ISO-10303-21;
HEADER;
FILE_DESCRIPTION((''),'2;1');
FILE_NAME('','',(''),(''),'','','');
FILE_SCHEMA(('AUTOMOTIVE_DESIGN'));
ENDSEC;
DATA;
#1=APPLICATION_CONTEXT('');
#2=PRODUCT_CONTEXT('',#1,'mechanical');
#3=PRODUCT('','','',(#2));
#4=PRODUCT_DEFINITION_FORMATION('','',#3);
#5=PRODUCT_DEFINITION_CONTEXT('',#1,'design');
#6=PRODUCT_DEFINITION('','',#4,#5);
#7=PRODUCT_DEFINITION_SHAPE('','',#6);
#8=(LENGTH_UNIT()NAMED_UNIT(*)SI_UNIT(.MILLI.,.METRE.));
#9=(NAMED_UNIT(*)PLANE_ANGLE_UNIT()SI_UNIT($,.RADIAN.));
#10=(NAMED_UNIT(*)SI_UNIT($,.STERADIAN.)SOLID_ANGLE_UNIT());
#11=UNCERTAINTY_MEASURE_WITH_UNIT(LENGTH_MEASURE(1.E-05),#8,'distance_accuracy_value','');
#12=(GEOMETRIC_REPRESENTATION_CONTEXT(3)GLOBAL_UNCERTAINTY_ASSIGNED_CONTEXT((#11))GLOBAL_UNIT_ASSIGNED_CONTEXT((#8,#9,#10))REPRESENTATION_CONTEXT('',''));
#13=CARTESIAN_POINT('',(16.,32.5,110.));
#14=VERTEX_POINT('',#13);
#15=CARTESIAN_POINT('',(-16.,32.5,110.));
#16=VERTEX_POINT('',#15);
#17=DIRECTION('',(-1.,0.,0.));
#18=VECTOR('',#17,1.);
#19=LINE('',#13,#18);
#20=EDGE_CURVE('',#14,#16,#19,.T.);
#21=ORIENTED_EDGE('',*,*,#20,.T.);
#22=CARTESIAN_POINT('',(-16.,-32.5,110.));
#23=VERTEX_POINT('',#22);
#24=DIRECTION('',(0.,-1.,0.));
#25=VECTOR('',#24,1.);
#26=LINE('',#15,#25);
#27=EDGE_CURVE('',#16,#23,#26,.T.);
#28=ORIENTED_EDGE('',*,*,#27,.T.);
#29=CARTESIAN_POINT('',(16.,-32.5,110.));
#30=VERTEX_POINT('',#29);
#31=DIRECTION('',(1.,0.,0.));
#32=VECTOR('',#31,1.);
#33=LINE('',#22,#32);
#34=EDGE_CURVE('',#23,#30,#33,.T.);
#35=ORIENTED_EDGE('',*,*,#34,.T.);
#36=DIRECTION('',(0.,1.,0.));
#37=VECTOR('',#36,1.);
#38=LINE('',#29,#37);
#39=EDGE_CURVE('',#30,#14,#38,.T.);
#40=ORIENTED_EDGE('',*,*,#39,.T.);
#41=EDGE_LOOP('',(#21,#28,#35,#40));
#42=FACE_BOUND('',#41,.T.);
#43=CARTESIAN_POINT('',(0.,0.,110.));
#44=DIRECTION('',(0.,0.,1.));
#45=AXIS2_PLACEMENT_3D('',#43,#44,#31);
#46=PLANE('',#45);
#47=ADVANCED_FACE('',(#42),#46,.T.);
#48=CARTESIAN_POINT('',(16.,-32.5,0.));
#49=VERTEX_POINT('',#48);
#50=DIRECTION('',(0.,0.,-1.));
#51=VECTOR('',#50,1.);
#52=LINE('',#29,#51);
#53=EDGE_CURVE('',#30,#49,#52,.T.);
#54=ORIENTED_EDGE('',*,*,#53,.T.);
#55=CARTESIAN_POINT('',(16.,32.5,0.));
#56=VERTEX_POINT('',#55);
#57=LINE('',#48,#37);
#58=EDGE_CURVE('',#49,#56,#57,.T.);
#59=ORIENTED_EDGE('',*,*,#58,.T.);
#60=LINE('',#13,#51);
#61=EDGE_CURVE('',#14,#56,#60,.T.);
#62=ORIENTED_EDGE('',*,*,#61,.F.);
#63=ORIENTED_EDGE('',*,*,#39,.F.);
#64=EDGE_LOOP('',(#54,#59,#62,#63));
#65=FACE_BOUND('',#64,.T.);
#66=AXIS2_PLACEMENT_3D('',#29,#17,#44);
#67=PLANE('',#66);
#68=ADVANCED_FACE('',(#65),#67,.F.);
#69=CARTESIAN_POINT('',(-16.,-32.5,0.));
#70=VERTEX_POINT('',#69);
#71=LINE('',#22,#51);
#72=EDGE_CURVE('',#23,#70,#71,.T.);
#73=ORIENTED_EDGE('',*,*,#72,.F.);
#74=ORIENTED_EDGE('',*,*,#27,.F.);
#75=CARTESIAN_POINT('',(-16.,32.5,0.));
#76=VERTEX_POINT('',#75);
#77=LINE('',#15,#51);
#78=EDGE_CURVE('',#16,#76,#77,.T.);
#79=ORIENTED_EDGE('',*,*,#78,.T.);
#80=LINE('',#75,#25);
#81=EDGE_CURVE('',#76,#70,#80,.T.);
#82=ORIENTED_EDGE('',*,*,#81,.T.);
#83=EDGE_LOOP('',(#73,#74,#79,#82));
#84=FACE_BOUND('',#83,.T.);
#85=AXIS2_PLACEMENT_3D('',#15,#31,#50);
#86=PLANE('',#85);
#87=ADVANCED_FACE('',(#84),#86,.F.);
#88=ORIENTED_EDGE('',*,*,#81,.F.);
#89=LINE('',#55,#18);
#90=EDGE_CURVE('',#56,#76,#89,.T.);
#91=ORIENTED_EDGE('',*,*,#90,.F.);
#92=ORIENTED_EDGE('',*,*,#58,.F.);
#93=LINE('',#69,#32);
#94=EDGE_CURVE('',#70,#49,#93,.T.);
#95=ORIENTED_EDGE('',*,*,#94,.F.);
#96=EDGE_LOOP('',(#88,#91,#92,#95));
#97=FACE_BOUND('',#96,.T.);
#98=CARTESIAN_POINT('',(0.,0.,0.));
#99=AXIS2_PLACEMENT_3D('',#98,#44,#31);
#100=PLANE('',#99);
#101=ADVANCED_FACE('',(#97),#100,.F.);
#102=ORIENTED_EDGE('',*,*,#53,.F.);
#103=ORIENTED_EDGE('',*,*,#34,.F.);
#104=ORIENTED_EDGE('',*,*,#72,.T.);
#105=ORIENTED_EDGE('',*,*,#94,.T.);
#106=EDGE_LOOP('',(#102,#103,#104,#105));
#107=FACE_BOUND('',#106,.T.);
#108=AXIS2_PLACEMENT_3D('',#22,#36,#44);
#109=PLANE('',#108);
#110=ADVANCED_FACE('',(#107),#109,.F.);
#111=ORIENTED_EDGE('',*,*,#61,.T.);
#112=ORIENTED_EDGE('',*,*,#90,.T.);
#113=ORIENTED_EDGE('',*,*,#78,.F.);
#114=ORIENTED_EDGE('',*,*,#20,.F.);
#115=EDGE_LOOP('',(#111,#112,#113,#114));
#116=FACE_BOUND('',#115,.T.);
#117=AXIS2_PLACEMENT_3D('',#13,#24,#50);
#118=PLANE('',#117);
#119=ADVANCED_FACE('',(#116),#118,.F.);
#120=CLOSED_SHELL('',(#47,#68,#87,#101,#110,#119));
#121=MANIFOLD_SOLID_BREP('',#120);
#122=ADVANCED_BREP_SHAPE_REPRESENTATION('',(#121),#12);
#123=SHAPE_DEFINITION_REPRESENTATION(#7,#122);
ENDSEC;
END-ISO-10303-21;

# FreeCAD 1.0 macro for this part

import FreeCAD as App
import Part
import Sketcher
Q = App.Units.Quantity

doc = App.newDocument("Part")
params = doc.addObject("Spreadsheet::Sheet", "Params")
for row, (alias, value) in enumerate([
    ("sketch1_width", "32 mm"),
    ("sketch1_height", "65 mm"),
    ("pad1_length", "110 mm"),
], start=1):
    params.set(f"A{row}", alias)
    params.set(f"B{row}", "=" + value)
    params.setAlias(f"B{row}", alias)

body = doc.addObject("PartDesign::Body", "Body")

sketch1 = body.newObject("Sketcher::SketchObject", "Sketch")
sketch1.AttachmentSupport = (doc.getObject("XY_Plane"), [""])
sketch1.MapMode = "FlatFace"
sketch1.addGeometry(Part.LineSegment(App.Vector(-16, 32, 0), App.Vector(-16, -32, 0)), False)
sketch1.addGeometry(Part.LineSegment(App.Vector(-16, -32, 0), App.Vector(16, -32, 0)), False)
sketch1.addGeometry(Part.LineSegment(App.Vector(16, -32, 0), App.Vector(16, 32, 0)), False)
sketch1.addGeometry(Part.LineSegment(App.Vector(16, 32, 0), App.Vector(-16, 32, 0)), False)
sketch1.addConstraint(Sketcher.Constraint("Coincident", 0, 2, 1, 1))
sketch1.addConstraint(Sketcher.Constraint("Coincident", 1, 2, 2, 1))
sketch1.addConstraint(Sketcher.Constraint("Coincident", 2, 2, 3, 1))
sketch1.addConstraint(Sketcher.Constraint("Coincident", 3, 2, 0, 1))
sketch1.addConstraint(Sketcher.Constraint("Vertical", 0))
sketch1.addConstraint(Sketcher.Constraint("Horizontal", 1))
sketch1.addConstraint(Sketcher.Constraint("Vertical", 2))
sketch1.addConstraint(Sketcher.Constraint("Horizontal", 3))
sketch1.addConstraint(Sketcher.Constraint("Symmetric", 0, 2, 2, 2, -1, 1))
sketch1.addConstraint(Sketcher.Constraint("DistanceX", 1, 1, 1, 2, Q("32 mm")))
sketch1.addConstraint(Sketcher.Constraint("DistanceY", 0, 2, 0, 1, Q("65 mm")))
sketch1.setExpression("Constraints[9]", "Params.sketch1_width")
sketch1.setExpression("Constraints[10]", "Params.sketch1_height")
pad1 = body.newObject("PartDesign::Pad", "Pad")
pad1.Profile = sketch1
pad1.setExpression("Length", "Params.pad1_length")

doc.recompute()
